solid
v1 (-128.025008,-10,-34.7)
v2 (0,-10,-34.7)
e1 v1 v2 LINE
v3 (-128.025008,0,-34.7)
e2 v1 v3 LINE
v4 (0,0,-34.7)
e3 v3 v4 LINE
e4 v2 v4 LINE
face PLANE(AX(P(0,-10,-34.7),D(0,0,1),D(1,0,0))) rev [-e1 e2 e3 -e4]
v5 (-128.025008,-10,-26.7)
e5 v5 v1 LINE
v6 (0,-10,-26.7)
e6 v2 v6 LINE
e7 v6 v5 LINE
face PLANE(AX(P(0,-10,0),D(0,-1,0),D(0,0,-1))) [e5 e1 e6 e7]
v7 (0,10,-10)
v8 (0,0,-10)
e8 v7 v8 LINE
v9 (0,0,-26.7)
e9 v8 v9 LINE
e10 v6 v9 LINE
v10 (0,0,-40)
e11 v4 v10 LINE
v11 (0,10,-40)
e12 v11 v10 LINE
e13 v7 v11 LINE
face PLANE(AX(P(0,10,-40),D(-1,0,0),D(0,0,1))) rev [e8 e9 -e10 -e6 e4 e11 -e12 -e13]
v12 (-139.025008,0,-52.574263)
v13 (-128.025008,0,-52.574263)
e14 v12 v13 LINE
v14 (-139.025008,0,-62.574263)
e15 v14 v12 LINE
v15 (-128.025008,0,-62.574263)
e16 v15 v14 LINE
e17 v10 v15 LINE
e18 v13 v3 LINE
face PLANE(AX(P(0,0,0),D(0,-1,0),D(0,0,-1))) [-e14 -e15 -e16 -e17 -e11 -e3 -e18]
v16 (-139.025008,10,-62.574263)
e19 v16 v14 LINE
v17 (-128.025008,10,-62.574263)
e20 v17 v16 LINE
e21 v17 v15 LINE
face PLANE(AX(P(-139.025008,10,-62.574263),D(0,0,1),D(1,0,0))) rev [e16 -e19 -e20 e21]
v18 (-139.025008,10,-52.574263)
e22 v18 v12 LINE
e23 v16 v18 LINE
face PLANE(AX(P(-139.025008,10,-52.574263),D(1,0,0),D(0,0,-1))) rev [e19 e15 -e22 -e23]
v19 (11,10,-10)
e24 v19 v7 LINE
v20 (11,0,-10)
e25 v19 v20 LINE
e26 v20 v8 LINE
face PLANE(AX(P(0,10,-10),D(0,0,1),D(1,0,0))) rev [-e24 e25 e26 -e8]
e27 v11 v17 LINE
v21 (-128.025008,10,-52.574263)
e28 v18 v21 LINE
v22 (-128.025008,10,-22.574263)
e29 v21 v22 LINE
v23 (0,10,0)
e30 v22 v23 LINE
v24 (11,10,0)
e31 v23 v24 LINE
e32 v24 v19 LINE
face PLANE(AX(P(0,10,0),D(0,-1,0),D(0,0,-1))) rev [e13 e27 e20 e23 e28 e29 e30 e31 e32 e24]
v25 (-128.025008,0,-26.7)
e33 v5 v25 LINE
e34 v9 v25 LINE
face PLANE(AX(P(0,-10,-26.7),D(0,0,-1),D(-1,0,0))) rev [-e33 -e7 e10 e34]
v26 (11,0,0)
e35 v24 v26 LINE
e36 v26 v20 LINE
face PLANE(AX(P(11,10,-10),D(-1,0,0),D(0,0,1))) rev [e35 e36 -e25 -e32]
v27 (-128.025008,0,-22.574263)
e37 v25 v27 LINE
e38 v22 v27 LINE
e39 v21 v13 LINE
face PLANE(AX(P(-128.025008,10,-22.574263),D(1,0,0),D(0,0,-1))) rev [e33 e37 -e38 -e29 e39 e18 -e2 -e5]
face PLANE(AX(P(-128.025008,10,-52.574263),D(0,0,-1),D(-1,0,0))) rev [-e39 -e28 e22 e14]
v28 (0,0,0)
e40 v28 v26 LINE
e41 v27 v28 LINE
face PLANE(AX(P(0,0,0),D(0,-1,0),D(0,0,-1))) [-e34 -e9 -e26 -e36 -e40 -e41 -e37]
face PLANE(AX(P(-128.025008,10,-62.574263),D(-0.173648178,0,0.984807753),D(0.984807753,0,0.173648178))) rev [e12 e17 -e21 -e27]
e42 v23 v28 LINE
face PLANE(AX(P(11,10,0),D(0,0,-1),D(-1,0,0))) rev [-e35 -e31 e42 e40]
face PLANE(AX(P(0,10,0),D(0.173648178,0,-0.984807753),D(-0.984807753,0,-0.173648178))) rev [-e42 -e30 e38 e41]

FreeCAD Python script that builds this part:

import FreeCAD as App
import Part
import Sketcher

V = App.Vector
Q = App.Units.Quantity

doc = App.newDocument("Part")
params = doc.addObject("Spreadsheet::Sheet", "Params")
for row, (alias, value) in enumerate([
    ("sketch1_width", "11 mm"),
    ("sketch1_height", "10 mm"),
    ("sketch1_height2", "30 mm"),
    ("sketch1_length", "130 mm"),
    ("pad1_length", "10 mm"),
    ("sketch2_height", "8 mm"),
    ("pad2_length", "10 mm"),
], start=1):
    params.set(f"A{row}", alias)
    params.set(f"B{row}", "=" + value)
    params.setAlias(f"B{row}", alias)

body = doc.addObject("PartDesign::Body", "Body")

sketch1 = body.newObject("Sketcher::SketchObject", "Sketch")
sketch1.AttachmentSupport = (doc.getObject("XZ_Plane"), [""])
sketch1.MapMode = "FlatFace"
sketch1.addGeometry(Part.LineSegment(V(-128, -23, 0), V(0, 0, 0)), False)
sketch1.addGeometry(Part.LineSegment(V(0, 0, 0), V(11, 0, 0)), False)
sketch1.addGeometry(Part.LineSegment(V(11, 0, 0), V(11, -10, 0)), False)
sketch1.addGeometry(Part.LineSegment(V(11, -10, 0), V(0, -10, 0)), False)
sketch1.addGeometry(Part.LineSegment(V(0, -10, 0), V(0, -40, 0)), False)
sketch1.addGeometry(Part.LineSegment(V(0, -40, 0), V(-128, -63, 0)), False)
sketch1.addGeometry(Part.LineSegment(V(-128, -63, 0), V(-139, -63, 0)), False)
sketch1.addGeometry(Part.LineSegment(V(-139, -63, 0), V(-139, -53, 0)), False)
sketch1.addGeometry(Part.LineSegment(V(-139, -53, 0), V(-128, -53, 0)), False)
sketch1.addGeometry(Part.LineSegment(V(-128, -53, 0), V(-128, -23, 0)), False)
sketch1.addConstraint(Sketcher.Constraint("Coincident", 0, 2, 1, 1))
sketch1.addConstraint(Sketcher.Constraint("Coincident", 1, 2, 2, 1))
sketch1.addConstraint(Sketcher.Constraint("Coincident", 2, 2, 3, 1))
sketch1.addConstraint(Sketcher.Constraint("Coincident", 3, 2, 4, 1))
sketch1.addConstraint(Sketcher.Constraint("Coincident", 4, 2, 5, 1))
sketch1.addConstraint(Sketcher.Constraint("Coincident", 5, 2, 6, 1))
sketch1.addConstraint(Sketcher.Constraint("Coincident", 6, 2, 7, 1))
sketch1.addConstraint(Sketcher.Constraint("Coincident", 7, 2, 8, 1))
sketch1.addConstraint(Sketcher.Constraint("Coincident", 8, 2, 9, 1))
sketch1.addConstraint(Sketcher.Constraint("Coincident", 9, 2, 0, 1))
sketch1.addConstraint(Sketcher.Constraint("Horizontal", 1))
sketch1.addConstraint(Sketcher.Constraint("Vertical", 2))
sketch1.addConstraint(Sketcher.Constraint("Horizontal", 3))
sketch1.addConstraint(Sketcher.Constraint("Vertical", 4))
sketch1.addConstraint(Sketcher.Constraint("Horizontal", 6))
sketch1.addConstraint(Sketcher.Constraint("Vertical", 7))
sketch1.addConstraint(Sketcher.Constraint("Horizontal", 8))
sketch1.addConstraint(Sketcher.Constraint("Vertical", 9))
sketch1.addConstraint(Sketcher.Constraint("Coincident", 0, 2, -1, 1))
sketch1.addConstraint(Sketcher.Constraint("PointOnObject", 3, 2, -2))
sketch1.addConstraint(Sketcher.Constraint("Parallel", 0, 5))
sketch1.addConstraint(Sketcher.Constraint("Vertical", 5, 2, 8, 2))
sketch1.addConstraint(Sketcher.Constraint("Equal", 3, 6))
sketch1.addConstraint(Sketcher.Constraint("Equal", 2, 7))
sketch1.addConstraint(Sketcher.Constraint("DistanceX", 1, 1, 1, 2, 11.0))
sketch1.addConstraint(Sketcher.Constraint("DistanceY", 2, 2, 2, 1, 10.0))
sketch1.addConstraint(Sketcher.Constraint("DistanceY", 4, 2, 4, 1, 30.0))
sketch1.addConstraint(Sketcher.Constraint("Angle", 0, Q("10 deg")))
sketch1.addConstraint(Sketcher.Constraint("Distance", 0, 130.0))
sketch1.setExpression("Constraints[24]", "Params.sketch1_width")
sketch1.setExpression("Constraints[25]", "Params.sketch1_height")
sketch1.setExpression("Constraints[26]", "Params.sketch1_height2")
sketch1.setExpression("Constraints[28]", "Params.sketch1_length")
pad1 = body.newObject("PartDesign::Pad", "Pad")
pad1.Profile = sketch1
pad1.setExpression("Length", "Params.pad1_length")
pad1.Reversed = True

sketch2 = body.newObject("Sketcher::SketchObject", "Sketch001")
sketch2.AttachmentSupport = (doc.getObject("XZ_Plane"), [""])
sketch2.MapMode = "FlatFace"
sketch2.addGeometry(Part.LineSegment(V(-128, -27, 0), V(-128, -35, 0)), False)
sketch2.addGeometry(Part.LineSegment(V(-128, -35, 0), V(0, -35, 0)), False)
sketch2.addGeometry(Part.LineSegment(V(0, -35, 0), V(0, -27, 0)), False)
sketch2.addGeometry(Part.LineSegment(V(0, -27, 0), V(-128, -27, 0)), False)
sketch2.addConstraint(Sketcher.Constraint("Coincident", 0, 2, 1, 1))
sketch2.addConstraint(Sketcher.Constraint("Coincident", 1, 2, 2, 1))
sketch2.addConstraint(Sketcher.Constraint("Coincident", 2, 2, 3, 1))
sketch2.addConstraint(Sketcher.Constraint("Coincident", 3, 2, 0, 1))
sketch2.addConstraint(Sketcher.Constraint("Vertical", 0))
sketch2.addConstraint(Sketcher.Constraint("Horizontal", 1))
sketch2.addConstraint(Sketcher.Constraint("Vertical", 2))
sketch2.addConstraint(Sketcher.Constraint("Horizontal", 3))
sketch2.addConstraint(Sketcher.Constraint("PointOnObject", 1, 2, -2))
sketch2.addConstraint(Sketcher.Constraint("DistanceY", 0, 2, 0, 1, 8.0))
sketch2.addConstraint(Sketcher.Constraint("DistanceY", 0, 2, -1, 1, 34.7))
sketch2.addConstraint(Sketcher.Constraint("DistanceX", 1, 1, 1, 2, 128.025008))
sketch2.setExpression("Constraints[9]", "Params.sketch2_height")
pad2 = body.newObject("PartDesign::Pad", "Pad001")
pad2.Profile = sketch2
pad2.setExpression("Length", "Params.pad2_length")

doc.recompute()
